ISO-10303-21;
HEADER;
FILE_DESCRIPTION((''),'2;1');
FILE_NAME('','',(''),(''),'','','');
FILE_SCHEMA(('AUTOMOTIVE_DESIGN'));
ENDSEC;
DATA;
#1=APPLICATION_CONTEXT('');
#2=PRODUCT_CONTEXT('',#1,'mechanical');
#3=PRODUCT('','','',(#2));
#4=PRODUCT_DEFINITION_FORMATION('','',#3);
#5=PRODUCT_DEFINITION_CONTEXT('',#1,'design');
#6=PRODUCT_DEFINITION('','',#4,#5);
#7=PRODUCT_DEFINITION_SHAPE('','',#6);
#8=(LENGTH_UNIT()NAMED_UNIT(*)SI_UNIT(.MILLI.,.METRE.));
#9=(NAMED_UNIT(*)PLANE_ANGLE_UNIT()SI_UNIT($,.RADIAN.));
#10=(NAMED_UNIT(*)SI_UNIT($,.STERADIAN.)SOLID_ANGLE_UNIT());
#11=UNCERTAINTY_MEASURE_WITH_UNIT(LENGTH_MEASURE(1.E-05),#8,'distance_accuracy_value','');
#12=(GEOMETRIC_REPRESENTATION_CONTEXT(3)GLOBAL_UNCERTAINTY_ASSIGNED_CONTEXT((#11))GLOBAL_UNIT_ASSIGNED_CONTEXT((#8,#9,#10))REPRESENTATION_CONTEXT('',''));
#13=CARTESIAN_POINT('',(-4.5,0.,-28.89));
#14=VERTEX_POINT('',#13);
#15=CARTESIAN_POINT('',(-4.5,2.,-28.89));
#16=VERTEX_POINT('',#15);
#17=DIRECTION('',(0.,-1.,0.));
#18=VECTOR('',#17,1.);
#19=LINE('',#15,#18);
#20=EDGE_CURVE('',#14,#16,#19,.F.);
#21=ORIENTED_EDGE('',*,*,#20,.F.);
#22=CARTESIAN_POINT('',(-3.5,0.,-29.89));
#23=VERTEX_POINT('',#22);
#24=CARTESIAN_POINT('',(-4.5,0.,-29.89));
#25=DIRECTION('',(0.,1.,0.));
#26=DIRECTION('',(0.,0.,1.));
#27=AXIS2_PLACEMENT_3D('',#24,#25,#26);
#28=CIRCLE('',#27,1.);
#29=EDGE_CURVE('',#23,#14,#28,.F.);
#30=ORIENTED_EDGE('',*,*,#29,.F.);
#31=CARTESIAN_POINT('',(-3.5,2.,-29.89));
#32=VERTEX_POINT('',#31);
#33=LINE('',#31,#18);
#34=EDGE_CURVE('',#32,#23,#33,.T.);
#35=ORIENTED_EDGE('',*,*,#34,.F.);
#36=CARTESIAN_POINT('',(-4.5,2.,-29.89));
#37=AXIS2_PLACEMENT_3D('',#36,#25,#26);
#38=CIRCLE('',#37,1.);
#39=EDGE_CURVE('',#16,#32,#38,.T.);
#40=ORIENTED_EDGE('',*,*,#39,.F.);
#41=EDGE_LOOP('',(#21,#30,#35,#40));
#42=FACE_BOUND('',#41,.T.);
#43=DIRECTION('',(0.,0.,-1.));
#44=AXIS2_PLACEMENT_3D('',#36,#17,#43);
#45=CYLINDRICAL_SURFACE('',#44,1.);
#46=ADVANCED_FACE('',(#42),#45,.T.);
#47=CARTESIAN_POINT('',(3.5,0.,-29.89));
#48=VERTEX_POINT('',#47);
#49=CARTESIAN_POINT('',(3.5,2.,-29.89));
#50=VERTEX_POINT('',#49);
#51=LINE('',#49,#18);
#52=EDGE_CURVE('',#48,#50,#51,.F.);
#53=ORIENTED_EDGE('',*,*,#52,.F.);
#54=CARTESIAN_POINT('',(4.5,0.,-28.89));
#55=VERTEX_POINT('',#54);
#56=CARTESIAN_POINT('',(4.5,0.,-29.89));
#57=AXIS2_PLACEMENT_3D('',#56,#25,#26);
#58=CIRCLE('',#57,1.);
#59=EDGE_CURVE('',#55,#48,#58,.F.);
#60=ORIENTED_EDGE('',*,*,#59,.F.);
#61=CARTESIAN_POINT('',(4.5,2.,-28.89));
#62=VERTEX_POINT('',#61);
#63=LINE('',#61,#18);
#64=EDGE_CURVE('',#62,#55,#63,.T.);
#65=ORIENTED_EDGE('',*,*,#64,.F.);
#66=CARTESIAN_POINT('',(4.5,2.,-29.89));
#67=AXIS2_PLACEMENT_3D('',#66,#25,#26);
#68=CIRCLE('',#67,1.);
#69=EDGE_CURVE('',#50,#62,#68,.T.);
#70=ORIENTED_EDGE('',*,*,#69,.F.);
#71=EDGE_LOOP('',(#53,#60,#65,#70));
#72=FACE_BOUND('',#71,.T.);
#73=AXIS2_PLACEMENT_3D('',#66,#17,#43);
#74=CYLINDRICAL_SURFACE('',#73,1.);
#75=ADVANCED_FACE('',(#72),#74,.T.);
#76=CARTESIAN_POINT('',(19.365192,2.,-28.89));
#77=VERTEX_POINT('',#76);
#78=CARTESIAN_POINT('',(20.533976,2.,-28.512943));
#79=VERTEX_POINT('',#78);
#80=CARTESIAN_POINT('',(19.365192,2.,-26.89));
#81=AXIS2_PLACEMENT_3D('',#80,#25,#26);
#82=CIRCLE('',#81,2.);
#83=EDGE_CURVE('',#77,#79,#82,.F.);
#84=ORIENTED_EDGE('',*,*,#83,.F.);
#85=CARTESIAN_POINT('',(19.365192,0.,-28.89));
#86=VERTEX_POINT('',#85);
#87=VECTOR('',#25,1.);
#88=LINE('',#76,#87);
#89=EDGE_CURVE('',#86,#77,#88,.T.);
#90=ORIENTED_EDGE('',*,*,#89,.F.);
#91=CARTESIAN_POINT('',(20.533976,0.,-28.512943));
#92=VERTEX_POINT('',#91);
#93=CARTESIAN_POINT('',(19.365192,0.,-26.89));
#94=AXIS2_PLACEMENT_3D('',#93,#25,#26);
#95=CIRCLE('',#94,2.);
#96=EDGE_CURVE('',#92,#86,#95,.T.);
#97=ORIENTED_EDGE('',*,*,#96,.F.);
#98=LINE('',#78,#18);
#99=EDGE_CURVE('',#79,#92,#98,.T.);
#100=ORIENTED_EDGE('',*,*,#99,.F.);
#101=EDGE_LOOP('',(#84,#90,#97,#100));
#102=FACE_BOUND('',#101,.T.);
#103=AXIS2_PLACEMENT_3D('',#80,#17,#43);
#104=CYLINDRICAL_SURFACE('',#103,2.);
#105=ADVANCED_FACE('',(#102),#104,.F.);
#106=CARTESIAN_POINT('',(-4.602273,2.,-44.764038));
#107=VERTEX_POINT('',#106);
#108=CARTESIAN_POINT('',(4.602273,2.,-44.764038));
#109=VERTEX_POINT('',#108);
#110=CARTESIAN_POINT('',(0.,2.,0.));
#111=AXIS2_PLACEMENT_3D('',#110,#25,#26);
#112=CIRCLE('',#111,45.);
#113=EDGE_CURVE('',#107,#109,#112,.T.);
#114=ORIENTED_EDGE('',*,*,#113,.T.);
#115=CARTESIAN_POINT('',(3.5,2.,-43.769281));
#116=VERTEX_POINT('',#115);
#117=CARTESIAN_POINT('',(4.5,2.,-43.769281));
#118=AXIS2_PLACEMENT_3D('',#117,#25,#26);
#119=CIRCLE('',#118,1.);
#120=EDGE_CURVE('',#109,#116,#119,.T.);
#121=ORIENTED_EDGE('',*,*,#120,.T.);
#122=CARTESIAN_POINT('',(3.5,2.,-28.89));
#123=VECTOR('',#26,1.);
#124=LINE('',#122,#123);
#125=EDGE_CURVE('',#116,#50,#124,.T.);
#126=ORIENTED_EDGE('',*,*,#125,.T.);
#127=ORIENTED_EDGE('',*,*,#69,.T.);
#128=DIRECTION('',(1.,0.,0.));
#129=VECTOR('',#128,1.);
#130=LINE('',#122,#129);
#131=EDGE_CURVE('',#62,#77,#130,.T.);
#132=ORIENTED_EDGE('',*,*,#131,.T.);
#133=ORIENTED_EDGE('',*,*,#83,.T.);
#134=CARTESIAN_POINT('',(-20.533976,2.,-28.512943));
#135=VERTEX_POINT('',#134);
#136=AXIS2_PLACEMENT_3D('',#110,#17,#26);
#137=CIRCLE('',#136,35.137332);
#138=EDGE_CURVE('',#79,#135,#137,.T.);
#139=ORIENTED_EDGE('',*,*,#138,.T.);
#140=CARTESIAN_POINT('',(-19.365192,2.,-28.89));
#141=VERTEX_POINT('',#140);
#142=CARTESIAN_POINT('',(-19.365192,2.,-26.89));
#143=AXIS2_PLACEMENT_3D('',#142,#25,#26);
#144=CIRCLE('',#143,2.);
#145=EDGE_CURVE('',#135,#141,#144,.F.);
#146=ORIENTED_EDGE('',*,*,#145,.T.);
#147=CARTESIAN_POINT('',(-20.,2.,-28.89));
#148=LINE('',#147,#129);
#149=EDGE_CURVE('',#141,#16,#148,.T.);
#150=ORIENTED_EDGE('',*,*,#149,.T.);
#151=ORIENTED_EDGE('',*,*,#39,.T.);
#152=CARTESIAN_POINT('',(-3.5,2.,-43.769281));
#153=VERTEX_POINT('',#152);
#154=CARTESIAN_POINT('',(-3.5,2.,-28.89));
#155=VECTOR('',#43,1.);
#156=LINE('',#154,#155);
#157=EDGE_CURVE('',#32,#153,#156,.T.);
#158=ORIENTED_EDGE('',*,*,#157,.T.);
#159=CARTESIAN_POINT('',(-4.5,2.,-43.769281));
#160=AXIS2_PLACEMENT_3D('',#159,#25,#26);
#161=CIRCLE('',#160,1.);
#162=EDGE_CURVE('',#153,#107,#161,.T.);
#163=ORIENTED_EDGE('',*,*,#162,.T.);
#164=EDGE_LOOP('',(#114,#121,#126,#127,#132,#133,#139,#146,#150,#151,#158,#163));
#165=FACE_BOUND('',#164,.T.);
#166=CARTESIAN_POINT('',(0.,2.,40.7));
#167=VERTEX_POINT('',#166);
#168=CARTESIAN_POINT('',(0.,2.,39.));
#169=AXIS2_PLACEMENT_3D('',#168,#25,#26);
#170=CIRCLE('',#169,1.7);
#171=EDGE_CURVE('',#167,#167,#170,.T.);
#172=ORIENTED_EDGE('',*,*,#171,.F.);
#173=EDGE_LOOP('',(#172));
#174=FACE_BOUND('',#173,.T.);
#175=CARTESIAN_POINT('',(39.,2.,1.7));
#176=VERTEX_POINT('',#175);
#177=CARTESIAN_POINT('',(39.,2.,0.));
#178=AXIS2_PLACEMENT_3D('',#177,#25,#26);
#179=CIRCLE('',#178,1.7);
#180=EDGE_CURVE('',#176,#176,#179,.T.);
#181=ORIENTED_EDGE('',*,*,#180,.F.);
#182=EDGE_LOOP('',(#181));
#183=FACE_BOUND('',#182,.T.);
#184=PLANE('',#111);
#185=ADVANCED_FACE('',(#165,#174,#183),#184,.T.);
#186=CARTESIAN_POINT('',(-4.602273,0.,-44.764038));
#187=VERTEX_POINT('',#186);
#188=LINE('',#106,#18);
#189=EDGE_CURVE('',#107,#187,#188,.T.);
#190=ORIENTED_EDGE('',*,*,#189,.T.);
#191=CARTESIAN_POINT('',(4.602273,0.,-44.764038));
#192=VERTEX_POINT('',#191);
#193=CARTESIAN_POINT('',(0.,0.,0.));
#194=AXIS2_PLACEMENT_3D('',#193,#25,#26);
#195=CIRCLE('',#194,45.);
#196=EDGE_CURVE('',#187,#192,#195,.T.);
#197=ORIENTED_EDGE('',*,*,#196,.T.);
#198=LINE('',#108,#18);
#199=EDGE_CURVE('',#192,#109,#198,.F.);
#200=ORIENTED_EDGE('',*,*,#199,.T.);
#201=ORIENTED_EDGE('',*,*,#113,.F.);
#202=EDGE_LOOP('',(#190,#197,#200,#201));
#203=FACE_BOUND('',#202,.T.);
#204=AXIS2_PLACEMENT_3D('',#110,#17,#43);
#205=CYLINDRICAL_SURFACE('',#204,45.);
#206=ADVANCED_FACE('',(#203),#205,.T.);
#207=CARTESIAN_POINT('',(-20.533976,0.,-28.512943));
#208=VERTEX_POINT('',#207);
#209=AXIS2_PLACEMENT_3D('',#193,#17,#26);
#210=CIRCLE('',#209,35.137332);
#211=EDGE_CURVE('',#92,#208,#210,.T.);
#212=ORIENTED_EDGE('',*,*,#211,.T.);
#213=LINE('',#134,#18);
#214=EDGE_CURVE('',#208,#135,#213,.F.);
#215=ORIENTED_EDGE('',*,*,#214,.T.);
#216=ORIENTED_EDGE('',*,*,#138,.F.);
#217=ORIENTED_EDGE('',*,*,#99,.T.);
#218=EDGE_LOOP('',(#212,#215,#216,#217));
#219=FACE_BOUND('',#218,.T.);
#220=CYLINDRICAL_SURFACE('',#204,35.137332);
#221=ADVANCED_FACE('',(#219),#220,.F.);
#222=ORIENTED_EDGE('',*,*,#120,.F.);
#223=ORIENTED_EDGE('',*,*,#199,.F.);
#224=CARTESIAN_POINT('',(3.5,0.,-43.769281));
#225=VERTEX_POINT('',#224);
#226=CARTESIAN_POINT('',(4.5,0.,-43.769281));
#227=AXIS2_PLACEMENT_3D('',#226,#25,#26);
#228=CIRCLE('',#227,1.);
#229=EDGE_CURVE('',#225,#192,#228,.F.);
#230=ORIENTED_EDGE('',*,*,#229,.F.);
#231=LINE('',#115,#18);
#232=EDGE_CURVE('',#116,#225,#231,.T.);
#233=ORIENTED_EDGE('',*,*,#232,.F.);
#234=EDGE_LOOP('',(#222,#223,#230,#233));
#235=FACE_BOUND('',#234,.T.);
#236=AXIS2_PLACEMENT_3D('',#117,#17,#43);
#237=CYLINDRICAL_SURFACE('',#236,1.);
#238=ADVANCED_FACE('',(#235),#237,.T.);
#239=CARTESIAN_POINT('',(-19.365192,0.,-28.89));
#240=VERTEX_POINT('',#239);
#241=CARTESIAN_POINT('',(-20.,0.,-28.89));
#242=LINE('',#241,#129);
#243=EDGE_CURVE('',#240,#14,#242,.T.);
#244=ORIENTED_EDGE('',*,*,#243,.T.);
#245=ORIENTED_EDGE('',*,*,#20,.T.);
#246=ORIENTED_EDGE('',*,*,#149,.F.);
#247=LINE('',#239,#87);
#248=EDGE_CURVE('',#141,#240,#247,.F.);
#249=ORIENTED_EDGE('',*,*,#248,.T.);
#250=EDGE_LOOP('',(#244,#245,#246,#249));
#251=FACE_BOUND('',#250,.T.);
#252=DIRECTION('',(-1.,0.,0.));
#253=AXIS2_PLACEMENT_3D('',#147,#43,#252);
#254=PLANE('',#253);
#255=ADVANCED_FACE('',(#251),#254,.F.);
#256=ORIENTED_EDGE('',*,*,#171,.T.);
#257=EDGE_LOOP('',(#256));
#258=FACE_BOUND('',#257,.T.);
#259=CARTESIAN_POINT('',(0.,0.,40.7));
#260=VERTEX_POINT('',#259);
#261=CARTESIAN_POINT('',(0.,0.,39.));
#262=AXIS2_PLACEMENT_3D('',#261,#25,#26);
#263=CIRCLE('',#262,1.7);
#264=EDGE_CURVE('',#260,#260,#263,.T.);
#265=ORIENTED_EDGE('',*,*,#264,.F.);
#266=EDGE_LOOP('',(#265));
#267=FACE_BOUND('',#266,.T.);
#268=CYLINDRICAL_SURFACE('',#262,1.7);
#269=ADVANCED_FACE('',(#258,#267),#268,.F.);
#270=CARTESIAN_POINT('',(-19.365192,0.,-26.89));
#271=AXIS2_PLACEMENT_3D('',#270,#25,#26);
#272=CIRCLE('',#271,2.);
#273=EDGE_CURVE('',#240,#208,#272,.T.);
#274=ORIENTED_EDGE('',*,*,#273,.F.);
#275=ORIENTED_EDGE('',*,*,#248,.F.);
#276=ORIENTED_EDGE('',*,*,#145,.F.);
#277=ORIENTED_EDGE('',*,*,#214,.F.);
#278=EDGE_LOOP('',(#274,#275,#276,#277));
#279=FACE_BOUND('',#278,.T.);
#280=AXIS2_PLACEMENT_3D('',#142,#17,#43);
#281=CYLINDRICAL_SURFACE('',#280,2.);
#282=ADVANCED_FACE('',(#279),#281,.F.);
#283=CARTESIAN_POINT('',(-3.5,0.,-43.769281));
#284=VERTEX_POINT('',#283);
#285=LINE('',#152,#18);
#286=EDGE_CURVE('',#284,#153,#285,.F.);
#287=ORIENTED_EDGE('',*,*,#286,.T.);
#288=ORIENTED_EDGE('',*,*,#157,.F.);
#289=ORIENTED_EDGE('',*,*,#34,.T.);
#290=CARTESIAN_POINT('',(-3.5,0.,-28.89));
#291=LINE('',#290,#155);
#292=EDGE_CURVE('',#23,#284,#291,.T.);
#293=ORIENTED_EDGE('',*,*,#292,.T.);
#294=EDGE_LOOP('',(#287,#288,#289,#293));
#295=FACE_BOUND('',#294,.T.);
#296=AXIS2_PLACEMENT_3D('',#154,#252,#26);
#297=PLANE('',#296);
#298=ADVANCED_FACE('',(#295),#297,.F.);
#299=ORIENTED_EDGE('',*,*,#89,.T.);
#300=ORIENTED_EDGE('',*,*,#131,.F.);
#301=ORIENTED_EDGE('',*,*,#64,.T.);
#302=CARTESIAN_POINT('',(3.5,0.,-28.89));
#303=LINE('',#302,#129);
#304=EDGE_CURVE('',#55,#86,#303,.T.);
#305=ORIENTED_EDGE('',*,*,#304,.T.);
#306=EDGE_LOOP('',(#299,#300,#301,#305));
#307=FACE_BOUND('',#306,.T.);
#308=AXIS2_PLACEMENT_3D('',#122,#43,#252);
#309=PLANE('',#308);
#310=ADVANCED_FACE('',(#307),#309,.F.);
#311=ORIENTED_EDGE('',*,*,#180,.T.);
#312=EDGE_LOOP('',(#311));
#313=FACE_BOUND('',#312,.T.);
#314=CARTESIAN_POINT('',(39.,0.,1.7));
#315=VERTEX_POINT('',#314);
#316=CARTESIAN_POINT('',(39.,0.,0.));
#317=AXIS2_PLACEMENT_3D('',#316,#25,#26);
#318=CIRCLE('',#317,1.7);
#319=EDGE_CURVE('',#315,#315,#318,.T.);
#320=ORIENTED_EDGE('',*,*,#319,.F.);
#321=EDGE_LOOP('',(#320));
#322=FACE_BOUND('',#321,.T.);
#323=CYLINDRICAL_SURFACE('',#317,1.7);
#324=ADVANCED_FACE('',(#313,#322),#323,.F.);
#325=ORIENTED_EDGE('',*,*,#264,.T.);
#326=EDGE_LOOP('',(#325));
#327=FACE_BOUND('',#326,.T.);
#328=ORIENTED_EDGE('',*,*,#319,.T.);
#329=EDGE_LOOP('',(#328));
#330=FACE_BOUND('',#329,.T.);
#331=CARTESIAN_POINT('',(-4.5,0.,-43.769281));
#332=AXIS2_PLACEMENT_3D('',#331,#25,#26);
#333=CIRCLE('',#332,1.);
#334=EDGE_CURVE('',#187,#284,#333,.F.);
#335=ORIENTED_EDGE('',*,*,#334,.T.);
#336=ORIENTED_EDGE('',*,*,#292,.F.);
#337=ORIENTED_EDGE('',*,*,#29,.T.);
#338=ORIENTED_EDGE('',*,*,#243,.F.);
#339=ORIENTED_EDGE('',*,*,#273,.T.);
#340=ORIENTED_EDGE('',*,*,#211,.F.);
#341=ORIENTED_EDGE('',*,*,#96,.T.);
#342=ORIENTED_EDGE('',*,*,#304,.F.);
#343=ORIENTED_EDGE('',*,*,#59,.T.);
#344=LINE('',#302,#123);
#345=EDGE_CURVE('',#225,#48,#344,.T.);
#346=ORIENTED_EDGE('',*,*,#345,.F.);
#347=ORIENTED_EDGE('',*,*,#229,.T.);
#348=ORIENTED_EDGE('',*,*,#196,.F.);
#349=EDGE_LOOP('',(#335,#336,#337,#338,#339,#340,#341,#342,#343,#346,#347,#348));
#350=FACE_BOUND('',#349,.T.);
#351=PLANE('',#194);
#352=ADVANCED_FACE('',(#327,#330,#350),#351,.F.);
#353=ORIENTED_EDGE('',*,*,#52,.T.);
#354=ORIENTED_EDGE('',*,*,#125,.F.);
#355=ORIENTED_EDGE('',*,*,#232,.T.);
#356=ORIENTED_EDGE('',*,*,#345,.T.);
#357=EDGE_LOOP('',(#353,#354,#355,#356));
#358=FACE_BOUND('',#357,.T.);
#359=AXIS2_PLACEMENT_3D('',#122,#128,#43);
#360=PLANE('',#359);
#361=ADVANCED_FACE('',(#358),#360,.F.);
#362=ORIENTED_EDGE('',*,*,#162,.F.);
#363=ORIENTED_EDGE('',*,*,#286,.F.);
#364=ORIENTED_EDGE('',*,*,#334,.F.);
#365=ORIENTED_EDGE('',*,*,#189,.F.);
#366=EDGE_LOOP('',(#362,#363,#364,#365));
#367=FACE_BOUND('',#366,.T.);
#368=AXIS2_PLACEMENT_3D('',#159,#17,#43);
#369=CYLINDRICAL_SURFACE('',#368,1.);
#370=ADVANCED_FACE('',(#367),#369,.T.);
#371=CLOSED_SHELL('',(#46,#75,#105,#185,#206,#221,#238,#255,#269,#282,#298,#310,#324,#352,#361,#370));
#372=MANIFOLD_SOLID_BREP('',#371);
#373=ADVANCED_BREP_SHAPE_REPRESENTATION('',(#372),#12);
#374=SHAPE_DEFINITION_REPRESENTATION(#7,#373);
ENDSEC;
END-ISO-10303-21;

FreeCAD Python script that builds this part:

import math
import FreeCAD as App
import Part
import Sketcher

V = App.Vector
Q = App.Units.Quantity


def edges_at(feature, points):
    """Names of the edges that pass closest to the given points."""
    edges = feature.Shape.Edges
    near = lambda p: min(range(len(edges)), key=lambda i: edges[i].distToShape(Part.Vertex(*p))[0])
    return sorted({f"Edge{near(p) + 1}" for p in points})

doc = App.newDocument("Part")
params = doc.addObject("Spreadsheet::Sheet", "Params")
for row, (alias, value) in enumerate([
    ("sketch1_radius", "45 mm"),
    ("sketch1_width", "16.5 mm"),
    ("pad1_length", "2 mm"),
    ("sketch2_diameter", "3.4 mm"),
    ("fillet_radius", "1 mm"),
    ("fillet2_radius", "2 mm"),
], start=1):
    params.set(f"A{row}", alias)
    params.set(f"B{row}", "=" + value)
    params.setAlias(f"B{row}", alias)

body = doc.addObject("PartDesign::Body", "Body")

sketch1 = doc.addObject("Sketcher::SketchObject", "Sketch")
body.addObject(sketch1)
sketch1.AttachmentSupport = (doc.XZ_Plane, [""])
sketch1.MapMode = "FlatFace"
sketch1.addGeometry([
    Part.LineSegment(V(-4, -29, 0), V(-4, -45, 0)),
    Part.ArcOfCircle(Part.Circle(V(0, 0, 0), V(0, 0, 1), 45), math.radians(-86), math.radians(266)),
    Part.LineSegment(V(4, -45, 0), V(4, -29, 0)),
    Part.LineSegment(V(4, -29, 0), V(20, -29, 0)),
    Part.ArcOfCircle(Part.Circle(V(0, 0, 0), V(0, 0, 1), 35), math.radians(-55), math.radians(235)),
    Part.LineSegment(V(-20, -29, 0), V(-4, -29, 0)),
], False)
sketch1.addConstraint([
    Sketcher.Constraint("Coincident", 0, 2, 1, 2),
    Sketcher.Constraint("Coincident", 1, 1, 2, 1),
    Sketcher.Constraint("Coincident", 2, 2, 3, 1),
    Sketcher.Constraint("Coincident", 3, 2, 4, 1),
    Sketcher.Constraint("Coincident", 4, 2, 5, 1),
    Sketcher.Constraint("Coincident", 5, 2, 0, 1),
    Sketcher.Constraint("Vertical", 0),
    Sketcher.Constraint("Vertical", 2),
    Sketcher.Constraint("Horizontal", 3),
    Sketcher.Constraint("Horizontal", 5),
    Sketcher.Constraint("Coincident", 1, 3, -1, 1),
    Sketcher.Constraint("Coincident", 4, 3, -1, 1),
    Sketcher.Constraint("Symmetric", 2, 2, 5, 2, -2),
    Sketcher.Constraint("Radius", 1, Q("45 mm")),
    Sketcher.Constraint("DistanceX", 3, 1, 3, 2, Q("16.5 mm")),
    Sketcher.Constraint("DistanceX", -1, 1, 3, 2, Q("20 mm")),
    Sketcher.Constraint("DistanceY", 2, 2, -1, 1, Q("28.89 mm")),
])
sketch1.setExpression("Constraints[13]", "Params.sketch1_radius")
sketch1.setExpression("Constraints[14]", "Params.sketch1_width")
pad1 = doc.addObject("PartDesign::Pad", "Pad")
body.addObject(pad1)
pad1.Profile = sketch1
pad1.setExpression("Length", "Params.pad1_length")
pad1.Reversed = True

sketch2 = doc.addObject("Sketcher::SketchObject", "Sketch001")
body.addObject(sketch2)
sketch2.AttachmentSupport = (doc.XZ_Plane, [""])
sketch2.MapMode = "FlatFace"
sketch2.AttachmentOffset = App.Placement(V(0, 0, -2), App.Rotation())
sketch2.addGeometry([
    Part.Circle(V(39, 0, 0), V(0, 0, 1), 1.7),
    Part.Circle(V(0, 39, 0), V(0, 0, 1), 1.7),
], False)
sketch2.addConstraint([
    Sketcher.Constraint("Equal", 0, 1),
    Sketcher.Constraint("PointOnObject", 0, 3, -1),
    Sketcher.Constraint("PointOnObject", 1, 3, -2),
    Sketcher.Constraint("Diameter", 0, Q("3.4 mm")),
    Sketcher.Constraint("DistanceX", -1, 1, 0, 3, Q("39 mm")),
    Sketcher.Constraint("DistanceY", -1, 1, 1, 3, Q("39 mm")),
])
sketch2.setExpression("Constraints[3]", "Params.sketch2_diameter")
pocket1 = doc.addObject("PartDesign::Pocket", "Pocket")
body.addObject(pocket1)
pocket1.Profile = sketch2
pocket1.Type = "ThroughAll"
pocket1.Reversed = True
doc.recompute()

fillet = doc.addObject("PartDesign::Fillet", "Fillet")
body.addObject(fillet)
fillet.Base = (pocket1, edges_at(pocket1, [
    (-3.5, 1, -44.864),
    (-3.5, 1, -28.89),
    (3.5, 1, -28.89),
    (3.5, 1, -44.864),
]))
fillet.setExpression("Radius", "Params.fillet_radius")
doc.recompute()

fillet2 = doc.addObject("PartDesign::Fillet", "Fillet001")
body.addObject(fillet2)
fillet2.Base = (fillet, edges_at(fillet, [(-20, 1, -28.89), (20, 1, -28.89)]))
fillet2.setExpression("Radius", "Params.fillet2_radius")

doc.recompute()
